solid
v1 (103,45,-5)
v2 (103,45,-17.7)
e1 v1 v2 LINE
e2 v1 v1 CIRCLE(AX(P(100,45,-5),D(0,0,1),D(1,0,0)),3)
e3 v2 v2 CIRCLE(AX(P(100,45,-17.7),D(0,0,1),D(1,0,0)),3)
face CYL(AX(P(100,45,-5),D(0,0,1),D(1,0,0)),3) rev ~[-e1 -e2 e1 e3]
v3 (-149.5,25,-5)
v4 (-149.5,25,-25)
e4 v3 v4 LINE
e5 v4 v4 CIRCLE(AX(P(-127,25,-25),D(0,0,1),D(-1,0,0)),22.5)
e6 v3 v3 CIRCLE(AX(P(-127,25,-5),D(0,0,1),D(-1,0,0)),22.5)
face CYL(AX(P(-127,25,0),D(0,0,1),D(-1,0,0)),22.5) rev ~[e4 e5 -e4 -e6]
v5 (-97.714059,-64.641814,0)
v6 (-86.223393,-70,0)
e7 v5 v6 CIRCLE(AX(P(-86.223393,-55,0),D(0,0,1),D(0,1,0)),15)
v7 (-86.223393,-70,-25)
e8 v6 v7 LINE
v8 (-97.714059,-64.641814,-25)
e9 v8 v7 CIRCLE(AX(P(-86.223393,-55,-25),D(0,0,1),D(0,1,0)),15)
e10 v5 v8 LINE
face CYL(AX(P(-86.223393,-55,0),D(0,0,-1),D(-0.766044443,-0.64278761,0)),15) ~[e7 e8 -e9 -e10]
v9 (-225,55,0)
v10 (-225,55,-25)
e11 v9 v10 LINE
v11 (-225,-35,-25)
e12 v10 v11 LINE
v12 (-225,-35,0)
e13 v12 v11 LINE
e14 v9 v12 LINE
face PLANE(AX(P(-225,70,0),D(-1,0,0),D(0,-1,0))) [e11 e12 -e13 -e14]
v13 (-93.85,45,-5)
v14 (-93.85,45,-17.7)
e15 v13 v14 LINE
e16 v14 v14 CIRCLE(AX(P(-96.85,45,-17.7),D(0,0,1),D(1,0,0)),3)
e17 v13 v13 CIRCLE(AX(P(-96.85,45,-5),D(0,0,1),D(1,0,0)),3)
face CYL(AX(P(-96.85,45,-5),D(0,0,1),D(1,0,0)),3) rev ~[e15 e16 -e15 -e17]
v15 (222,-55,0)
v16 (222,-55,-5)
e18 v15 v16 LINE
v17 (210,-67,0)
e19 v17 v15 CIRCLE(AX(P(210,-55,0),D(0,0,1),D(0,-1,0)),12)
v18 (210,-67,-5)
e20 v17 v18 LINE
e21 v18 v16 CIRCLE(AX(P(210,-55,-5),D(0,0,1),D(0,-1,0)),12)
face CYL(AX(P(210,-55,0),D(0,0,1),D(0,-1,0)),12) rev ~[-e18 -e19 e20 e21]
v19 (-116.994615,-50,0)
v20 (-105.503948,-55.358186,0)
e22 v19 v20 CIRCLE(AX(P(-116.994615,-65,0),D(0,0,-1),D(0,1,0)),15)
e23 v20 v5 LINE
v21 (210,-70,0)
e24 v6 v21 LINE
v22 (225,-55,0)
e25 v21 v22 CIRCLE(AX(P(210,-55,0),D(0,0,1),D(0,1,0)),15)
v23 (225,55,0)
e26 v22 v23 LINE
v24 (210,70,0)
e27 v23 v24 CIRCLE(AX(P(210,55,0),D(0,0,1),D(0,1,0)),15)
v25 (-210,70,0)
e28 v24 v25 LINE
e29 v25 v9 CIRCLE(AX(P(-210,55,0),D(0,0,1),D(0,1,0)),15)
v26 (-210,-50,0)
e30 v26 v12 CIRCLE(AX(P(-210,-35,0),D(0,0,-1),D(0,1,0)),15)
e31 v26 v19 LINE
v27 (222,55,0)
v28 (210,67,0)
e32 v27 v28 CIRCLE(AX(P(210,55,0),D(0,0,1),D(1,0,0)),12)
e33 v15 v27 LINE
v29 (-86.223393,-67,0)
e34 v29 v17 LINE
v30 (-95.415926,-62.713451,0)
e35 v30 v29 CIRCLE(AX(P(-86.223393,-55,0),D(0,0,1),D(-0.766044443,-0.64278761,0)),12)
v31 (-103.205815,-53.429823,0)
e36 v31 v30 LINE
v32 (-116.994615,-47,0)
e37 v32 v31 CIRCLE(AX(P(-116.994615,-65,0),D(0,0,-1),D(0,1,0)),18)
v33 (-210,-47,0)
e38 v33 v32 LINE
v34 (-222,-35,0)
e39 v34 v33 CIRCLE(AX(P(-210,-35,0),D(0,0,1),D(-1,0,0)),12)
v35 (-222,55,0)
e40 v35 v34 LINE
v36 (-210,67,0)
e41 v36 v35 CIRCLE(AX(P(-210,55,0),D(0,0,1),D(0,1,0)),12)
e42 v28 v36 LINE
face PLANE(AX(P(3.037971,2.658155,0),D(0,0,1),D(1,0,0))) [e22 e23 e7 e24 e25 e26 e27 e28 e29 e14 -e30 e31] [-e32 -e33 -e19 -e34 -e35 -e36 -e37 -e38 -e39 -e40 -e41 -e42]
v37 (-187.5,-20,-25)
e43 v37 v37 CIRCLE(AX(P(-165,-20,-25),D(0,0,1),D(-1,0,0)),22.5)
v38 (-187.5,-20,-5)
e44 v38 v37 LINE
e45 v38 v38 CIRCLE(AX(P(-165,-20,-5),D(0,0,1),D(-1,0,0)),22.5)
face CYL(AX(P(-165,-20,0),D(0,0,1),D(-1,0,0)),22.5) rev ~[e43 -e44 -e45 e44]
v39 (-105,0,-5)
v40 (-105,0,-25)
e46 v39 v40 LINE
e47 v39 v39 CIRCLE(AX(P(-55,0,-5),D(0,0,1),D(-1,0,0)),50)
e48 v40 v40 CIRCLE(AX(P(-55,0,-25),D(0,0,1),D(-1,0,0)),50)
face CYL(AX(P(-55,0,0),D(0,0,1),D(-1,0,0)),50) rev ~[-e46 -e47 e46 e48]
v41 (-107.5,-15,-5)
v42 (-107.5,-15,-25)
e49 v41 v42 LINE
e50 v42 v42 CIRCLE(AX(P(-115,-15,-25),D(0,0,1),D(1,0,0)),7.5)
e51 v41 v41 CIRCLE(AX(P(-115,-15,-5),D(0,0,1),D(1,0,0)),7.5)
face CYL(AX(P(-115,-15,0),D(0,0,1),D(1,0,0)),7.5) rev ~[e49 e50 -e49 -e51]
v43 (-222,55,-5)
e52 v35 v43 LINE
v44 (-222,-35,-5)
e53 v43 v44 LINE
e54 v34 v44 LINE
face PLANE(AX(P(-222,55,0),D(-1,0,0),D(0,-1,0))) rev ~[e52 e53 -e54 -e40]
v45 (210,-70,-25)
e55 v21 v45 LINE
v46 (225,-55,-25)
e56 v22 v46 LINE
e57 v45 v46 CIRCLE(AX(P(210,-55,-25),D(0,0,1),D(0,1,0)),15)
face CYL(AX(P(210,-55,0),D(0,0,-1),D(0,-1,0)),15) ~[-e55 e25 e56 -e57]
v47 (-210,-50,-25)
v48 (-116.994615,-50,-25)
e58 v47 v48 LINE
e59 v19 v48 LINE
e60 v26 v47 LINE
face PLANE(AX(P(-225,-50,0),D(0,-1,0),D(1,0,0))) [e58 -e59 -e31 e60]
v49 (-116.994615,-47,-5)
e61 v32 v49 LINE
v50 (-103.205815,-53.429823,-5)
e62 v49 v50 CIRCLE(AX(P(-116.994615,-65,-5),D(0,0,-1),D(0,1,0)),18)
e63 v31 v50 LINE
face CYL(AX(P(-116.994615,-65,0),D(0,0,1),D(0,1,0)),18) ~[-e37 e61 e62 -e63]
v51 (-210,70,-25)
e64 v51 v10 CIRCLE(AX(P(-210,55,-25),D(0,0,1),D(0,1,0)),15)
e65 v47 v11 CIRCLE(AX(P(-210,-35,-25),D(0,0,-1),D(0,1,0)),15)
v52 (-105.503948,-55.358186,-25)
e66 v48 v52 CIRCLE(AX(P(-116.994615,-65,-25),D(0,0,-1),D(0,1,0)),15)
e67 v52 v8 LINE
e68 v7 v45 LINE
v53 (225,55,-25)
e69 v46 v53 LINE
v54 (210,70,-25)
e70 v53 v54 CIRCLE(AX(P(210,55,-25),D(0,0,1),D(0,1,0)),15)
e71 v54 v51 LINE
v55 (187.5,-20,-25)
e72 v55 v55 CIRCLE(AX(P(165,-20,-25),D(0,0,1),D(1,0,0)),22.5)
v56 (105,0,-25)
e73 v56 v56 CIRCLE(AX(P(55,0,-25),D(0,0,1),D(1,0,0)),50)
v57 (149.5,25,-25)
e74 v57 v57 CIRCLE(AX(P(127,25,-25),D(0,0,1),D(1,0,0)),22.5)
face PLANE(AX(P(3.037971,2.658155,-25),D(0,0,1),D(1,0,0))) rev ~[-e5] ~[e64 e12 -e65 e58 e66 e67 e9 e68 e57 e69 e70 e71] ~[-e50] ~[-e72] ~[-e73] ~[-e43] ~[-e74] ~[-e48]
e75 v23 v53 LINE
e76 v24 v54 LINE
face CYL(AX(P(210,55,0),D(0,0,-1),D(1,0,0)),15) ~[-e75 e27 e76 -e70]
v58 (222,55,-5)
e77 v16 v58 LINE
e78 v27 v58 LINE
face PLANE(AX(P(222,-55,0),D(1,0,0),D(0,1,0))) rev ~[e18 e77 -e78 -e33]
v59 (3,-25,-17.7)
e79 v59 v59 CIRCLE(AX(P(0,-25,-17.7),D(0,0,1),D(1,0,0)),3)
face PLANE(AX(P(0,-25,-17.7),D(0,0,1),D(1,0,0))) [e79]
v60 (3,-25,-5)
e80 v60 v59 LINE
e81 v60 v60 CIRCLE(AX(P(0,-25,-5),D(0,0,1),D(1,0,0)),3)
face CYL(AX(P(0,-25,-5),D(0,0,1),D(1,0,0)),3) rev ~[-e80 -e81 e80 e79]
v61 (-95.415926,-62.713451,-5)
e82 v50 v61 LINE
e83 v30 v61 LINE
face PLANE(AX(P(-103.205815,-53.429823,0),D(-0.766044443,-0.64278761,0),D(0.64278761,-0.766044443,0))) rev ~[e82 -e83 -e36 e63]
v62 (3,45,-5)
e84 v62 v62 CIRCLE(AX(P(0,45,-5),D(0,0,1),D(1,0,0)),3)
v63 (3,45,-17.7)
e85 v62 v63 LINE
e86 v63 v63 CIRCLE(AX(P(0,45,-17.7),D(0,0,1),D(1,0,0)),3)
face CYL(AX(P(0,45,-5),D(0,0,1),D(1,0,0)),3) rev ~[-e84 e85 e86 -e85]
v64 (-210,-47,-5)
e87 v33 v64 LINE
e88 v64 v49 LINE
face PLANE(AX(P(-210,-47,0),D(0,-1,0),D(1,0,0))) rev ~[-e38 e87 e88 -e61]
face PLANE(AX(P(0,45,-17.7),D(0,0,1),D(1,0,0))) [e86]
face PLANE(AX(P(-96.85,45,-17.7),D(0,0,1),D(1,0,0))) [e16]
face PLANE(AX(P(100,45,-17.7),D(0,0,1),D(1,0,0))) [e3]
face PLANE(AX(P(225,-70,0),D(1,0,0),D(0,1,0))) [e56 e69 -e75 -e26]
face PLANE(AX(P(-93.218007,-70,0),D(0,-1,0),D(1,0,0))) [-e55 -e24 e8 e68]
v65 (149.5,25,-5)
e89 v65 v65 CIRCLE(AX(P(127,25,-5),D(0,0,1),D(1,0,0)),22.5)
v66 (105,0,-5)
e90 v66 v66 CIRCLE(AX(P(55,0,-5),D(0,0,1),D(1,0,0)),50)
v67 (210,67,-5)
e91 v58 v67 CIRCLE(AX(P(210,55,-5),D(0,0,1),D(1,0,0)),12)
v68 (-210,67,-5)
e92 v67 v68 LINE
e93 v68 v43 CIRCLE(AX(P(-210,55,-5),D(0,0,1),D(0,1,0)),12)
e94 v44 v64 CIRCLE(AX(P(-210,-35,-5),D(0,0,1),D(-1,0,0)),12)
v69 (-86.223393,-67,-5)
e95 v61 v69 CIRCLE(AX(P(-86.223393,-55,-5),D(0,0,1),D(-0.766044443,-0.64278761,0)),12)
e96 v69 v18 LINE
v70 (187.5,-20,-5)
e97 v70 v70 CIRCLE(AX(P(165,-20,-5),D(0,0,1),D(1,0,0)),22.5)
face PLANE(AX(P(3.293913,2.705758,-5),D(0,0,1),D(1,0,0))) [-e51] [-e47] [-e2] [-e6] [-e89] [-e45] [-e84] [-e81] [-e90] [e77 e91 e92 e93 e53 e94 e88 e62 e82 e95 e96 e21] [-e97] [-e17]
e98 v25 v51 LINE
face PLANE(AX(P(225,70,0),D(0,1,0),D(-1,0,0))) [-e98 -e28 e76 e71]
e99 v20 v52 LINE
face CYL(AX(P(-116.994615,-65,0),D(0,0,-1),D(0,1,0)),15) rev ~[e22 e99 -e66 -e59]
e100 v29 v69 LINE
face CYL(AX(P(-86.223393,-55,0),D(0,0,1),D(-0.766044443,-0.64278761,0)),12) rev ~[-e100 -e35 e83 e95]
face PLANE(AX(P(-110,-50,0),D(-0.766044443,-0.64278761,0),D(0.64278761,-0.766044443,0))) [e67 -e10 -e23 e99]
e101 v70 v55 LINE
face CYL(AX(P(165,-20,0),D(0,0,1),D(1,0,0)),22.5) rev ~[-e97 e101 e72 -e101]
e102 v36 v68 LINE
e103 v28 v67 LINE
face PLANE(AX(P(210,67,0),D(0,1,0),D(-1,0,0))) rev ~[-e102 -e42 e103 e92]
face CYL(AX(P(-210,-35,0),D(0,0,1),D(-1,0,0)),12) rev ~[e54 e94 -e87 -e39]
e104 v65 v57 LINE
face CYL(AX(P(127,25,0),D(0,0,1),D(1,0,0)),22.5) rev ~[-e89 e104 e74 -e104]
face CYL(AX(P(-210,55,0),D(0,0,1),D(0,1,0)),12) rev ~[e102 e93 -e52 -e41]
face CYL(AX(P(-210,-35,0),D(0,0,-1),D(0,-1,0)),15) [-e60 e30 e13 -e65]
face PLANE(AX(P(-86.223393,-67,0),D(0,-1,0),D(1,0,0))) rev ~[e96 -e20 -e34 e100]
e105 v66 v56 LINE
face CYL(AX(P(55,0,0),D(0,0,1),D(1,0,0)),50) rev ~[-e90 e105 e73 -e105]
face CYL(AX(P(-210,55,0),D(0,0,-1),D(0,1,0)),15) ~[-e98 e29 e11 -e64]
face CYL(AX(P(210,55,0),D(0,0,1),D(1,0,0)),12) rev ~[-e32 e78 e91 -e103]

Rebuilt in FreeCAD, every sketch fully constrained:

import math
import FreeCAD as App
import Part
import Sketcher
Q = App.Units.Quantity


def edges_at(feature, points):
    """Names of the edges that pass closest to the given points."""
    edges = feature.Shape.Edges
    near = lambda p: min(range(len(edges)), key=lambda i: edges[i].distToShape(Part.Vertex(*p))[0])
    return sorted({f"Edge{near(p) + 1}" for p in points})


def add_polygon(sketch, points):
    """Adds a closed chain of lines whose ends are joined by coincident constraints."""
    first, n = sketch.GeometryCount, len(points)
    for a, b in zip(points, points[1:] + points[:1]):
        sketch.addGeometry(Part.LineSegment(App.Vector(*a, 0), App.Vector(*b, 0)), False)
    for i in range(n):
        sketch.addConstraint(Sketcher.Constraint("Coincident", first + i, 2, first + (i + 1) % n, 1))

doc = App.newDocument("Part")
params = doc.addObject("Spreadsheet::Sheet", "Params")
for row, (alias, value) in enumerate([
    ("sketch1_width", "115 mm"),
    ("sketch1_width2", "450 mm"),
    ("sketch1_height", "140 mm"),
    ("sketch1_height2", "120 mm"),
    ("pad1_length", "25 mm"),
    ("fillet_radius", "15 mm"),
    ("sketch2_diameter", "100 mm"),
    ("sketch2_diameter2", "45 mm"),
    ("sketch2_diameter3", "15 mm"),
    ("sketch3_radius", "12 mm"),
    ("sketch3_radius2", "18 mm"),
    ("sketch3_width", "420 mm"),
    ("sketch3_height", "110 mm"),
    ("sketch3_height2", "90 mm"),
    ("pocket2_length", "5 mm"),
    ("sketch4_diameter", "6 mm"),
    ("pocket3_length", "12.7 mm"),
], start=1):
    params.set(f"A{row}", alias)
    params.set(f"B{row}", "=" + value)
    params.setAlias(f"B{row}", alias)

body = doc.addObject("PartDesign::Body", "Body")

sketch1 = body.newObject("Sketcher::SketchObject", "Sketch")
sketch1.AttachmentSupport = (doc.getObject("XY_Plane"), [""])
sketch1.MapMode = "FlatFace"
add_polygon(sketch1, [(-225, -50), (-110, -50), (-93, -70), (225, -70), (225, 70), (-225, 70)])
sketch1.addConstraint(Sketcher.Constraint("Horizontal", 0))
sketch1.addConstraint(Sketcher.Constraint("Horizontal", 2))
sketch1.addConstraint(Sketcher.Constraint("Vertical", 3))
sketch1.addConstraint(Sketcher.Constraint("Horizontal", 4))
sketch1.addConstraint(Sketcher.Constraint("Vertical", 5))
sketch1.addConstraint(Sketcher.Constraint("Symmetric", 2, 2, 4, 2, -1, 1))
sketch1.addConstraint(Sketcher.Constraint("DistanceX", 0, 1, 0, 2, 115.0))
sketch1.addConstraint(Sketcher.Constraint("DistanceX", 4, 2, 4, 1, 450.0))
sketch1.addConstraint(Sketcher.Constraint("DistanceY", 3, 1, 3, 2, 140.0))
sketch1.addConstraint(Sketcher.Constraint("DistanceY", 5, 2, 5, 1, 120.0))
sketch1.addConstraint(Sketcher.Constraint("Angle", 1, Q("-50 deg")))
sketch1.setExpression("Constraints[12]", "Params.sketch1_width")
sketch1.setExpression("Constraints[13]", "Params.sketch1_width2")
sketch1.setExpression("Constraints[14]", "Params.sketch1_height")
sketch1.setExpression("Constraints[15]", "Params.sketch1_height2")
pad1 = body.newObject("PartDesign::Pad", "Pad")
pad1.Profile = sketch1
pad1.setExpression("Length", "Params.pad1_length")
pad1.Reversed = True
doc.recompute()

fillet = body.newObject("PartDesign::Fillet", "Fillet")
fillet.Base = (pad1, edges_at(pad1, [
    (225, -70, -12.5),
    (-93.218, -70, -12.5),
    (-110, -50, -12.5),
    (-225, -50, -12.5),
    (-225, 70, -12.5),
    (225, 70, -12.5),
]))
fillet.setExpression("Radius", "Params.fillet_radius")

sketch2 = body.newObject("Sketcher::SketchObject", "Sketch001")
sketch2.AttachmentSupport = (doc.getObject("XY_Plane"), [""])
sketch2.MapMode = "FlatFace"
sketch2.addGeometry(Part.Circle(App.Vector(55, 0, 0), App.Vector(0, 0, 1), 50), False)
sketch2.addGeometry(Part.Circle(App.Vector(127, 25, 0), App.Vector(0, 0, 1), 22), False)
sketch2.addGeometry(Part.Circle(App.Vector(165, -20, 0), App.Vector(0, 0, 1), 22), False)
sketch2.addGeometry(Part.Circle(App.Vector(-165, -20, 0), App.Vector(0, 0, 1), 22), False)
sketch2.addGeometry(Part.Circle(App.Vector(-127, 25, 0), App.Vector(0, 0, 1), 22), False)
sketch2.addGeometry(Part.Circle(App.Vector(-55, 0, 0), App.Vector(0, 0, 1), 50), False)
sketch2.addGeometry(Part.Circle(App.Vector(-115, -15, 0), App.Vector(0, 0, 1), 8), False)
sketch2.addConstraint(Sketcher.Constraint("Equal", 1, 2))
sketch2.addConstraint(Sketcher.Constraint("Equal", 2, 3))
sketch2.addConstraint(Sketcher.Constraint("Equal", 3, 4))
sketch2.addConstraint(Sketcher.Constraint("Equal", 0, 5))
sketch2.addConstraint(Sketcher.Constraint("Symmetric", 0, 3, 5, 3, -1, 1))
sketch2.addConstraint(Sketcher.Constraint("Symmetric", 2, 3, 3, 3, -2))
sketch2.addConstraint(Sketcher.Constraint("Symmetric", 1, 3, 4, 3, -2))
sketch2.addConstraint(Sketcher.Constraint("PointOnObject", 0, 3, -1))
sketch2.addConstraint(Sketcher.Constraint("Diameter", 0, 100.0))
sketch2.addConstraint(Sketcher.Constraint("Diameter", 1, 45.0))
sketch2.addConstraint(Sketcher.Constraint("Diameter", 6, 15.0))
sketch2.addConstraint(Sketcher.Constraint("DistanceX", -1, 1, 0, 3, 55.0))
sketch2.addConstraint(Sketcher.Constraint("DistanceX", -1, 1, 1, 3, 127.0))
sketch2.addConstraint(Sketcher.Constraint("DistanceY", -1, 1, 1, 3, 25.0))
sketch2.addConstraint(Sketcher.Constraint("DistanceX", -1, 1, 2, 3, 165.0))
sketch2.addConstraint(Sketcher.Constraint("DistanceY", 2, 3, -1, 1, 20.0))
sketch2.addConstraint(Sketcher.Constraint("DistanceX", 6, 3, -1, 1, 115.0))
sketch2.addConstraint(Sketcher.Constraint("DistanceY", 6, 3, -1, 1, 15.0))
sketch2.setExpression("Constraints[8]", "Params.sketch2_diameter")
sketch2.setExpression("Constraints[9]", "Params.sketch2_diameter2")
sketch2.setExpression("Constraints[10]", "Params.sketch2_diameter3")
pocket1 = body.newObject("PartDesign::Pocket", "Pocket")
pocket1.Profile = sketch2
pocket1.Type = "ThroughAll"

sketch3 = body.newObject("Sketcher::SketchObject", "Sketch002")
sketch3.AttachmentSupport = (doc.getObject("XY_Plane"), [""])
sketch3.MapMode = "FlatFace"
sketch3.addGeometry(Part.LineSegment(App.Vector(-103, -53, 0), App.Vector(-95, -63, 0)), False)
sketch3.addGeometry(Part.ArcOfCircle(Part.Circle(App.Vector(-86, -55, 0), App.Vector(0, 0, 1), 12), math.radians(-140), math.radians(-90)), False)
sketch3.addGeometry(Part.LineSegment(App.Vector(-86, -67, 0), App.Vector(210, -67, 0)), False)
sketch3.addGeometry(Part.ArcOfCircle(Part.Circle(App.Vector(210, -55, 0), App.Vector(0, 0, 1), 12), math.radians(-90), math.radians(0)), False)
sketch3.addGeometry(Part.LineSegment(App.Vector(222, -55, 0), App.Vector(222, 55, 0)), False)
sketch3.addGeometry(Part.ArcOfCircle(Part.Circle(App.Vector(210, 55, 0), App.Vector(0, 0, 1), 12), math.radians(0), math.radians(90)), False)
sketch3.addGeometry(Part.LineSegment(App.Vector(210, 67, 0), App.Vector(-210, 67, 0)), False)
sketch3.addGeometry(Part.ArcOfCircle(Part.Circle(App.Vector(-210, 55, 0), App.Vector(0, 0, 1), 12), math.radians(90), math.radians(180)), False)
sketch3.addGeometry(Part.LineSegment(App.Vector(-222, 55, 0), App.Vector(-222, -35, 0)), False)
sketch3.addGeometry(Part.ArcOfCircle(Part.Circle(App.Vector(-210, -35, 0), App.Vector(0, 0, 1), 12), math.radians(-180), math.radians(-90)), False)
sketch3.addGeometry(Part.LineSegment(App.Vector(-210, -47, 0), App.Vector(-117, -47, 0)), False)
sketch3.addGeometry(Part.ArcOfCircle(Part.Circle(App.Vector(-117, -65, 0), App.Vector(0, 0, 1), 18), math.radians(40), math.radians(90)), False)
sketch3.addConstraint(Sketcher.Constraint("Tangent", 0, 2, 1, 1))
sketch3.addConstraint(Sketcher.Constraint("Tangent", 1, 2, 2, 1))
sketch3.addConstraint(Sketcher.Constraint("Tangent", 2, 2, 3, 1))
sketch3.addConstraint(Sketcher.Constraint("Tangent", 3, 2, 4, 1))
sketch3.addConstraint(Sketcher.Constraint("Tangent", 4, 2, 5, 1))
sketch3.addConstraint(Sketcher.Constraint("Tangent", 5, 2, 6, 1))
sketch3.addConstraint(Sketcher.Constraint("Tangent", 6, 2, 7, 1))
sketch3.addConstraint(Sketcher.Constraint("Tangent", 7, 2, 8, 1))
sketch3.addConstraint(Sketcher.Constraint("Tangent", 8, 2, 9, 1))
sketch3.addConstraint(Sketcher.Constraint("Tangent", 9, 2, 10, 1))
sketch3.addConstraint(Sketcher.Constraint("Tangent", 10, 2, 11, 2))
sketch3.addConstraint(Sketcher.Constraint("Tangent", 11, 1, 0, 1))
sketch3.addConstraint(Sketcher.Constraint("Horizontal", 2))
sketch3.addConstraint(Sketcher.Constraint("Vertical", 4))
sketch3.addConstraint(Sketcher.Constraint("Horizontal", 6))
sketch3.addConstraint(Sketcher.Constraint("Vertical", 8))
sketch3.addConstraint(Sketcher.Constraint("Horizontal", 10))
sketch3.addConstraint(Sketcher.Constraint("Equal", 1, 3))
sketch3.addConstraint(Sketcher.Constraint("Equal", 3, 5))
sketch3.addConstraint(Sketcher.Constraint("Equal", 5, 7))
sketch3.addConstraint(Sketcher.Constraint("Equal", 7, 9))
sketch3.addConstraint(Sketcher.Constraint("Symmetric", 3, 3, 7, 3, -1, 1))
sketch3.addConstraint(Sketcher.Constraint("Radius", 1, 12.0))
sketch3.addConstraint(Sketcher.Constraint("Radius", 11, 18.0))
sketch3.addConstraint(Sketcher.Constraint("DistanceX", 6, 2, 6, 1, 420.0))
sketch3.addConstraint(Sketcher.Constraint("DistanceY", 4, 1, 4, 2, 110.0))
sketch3.addConstraint(Sketcher.Constraint("DistanceY", 8, 2, 8, 1, 90.0))
sketch3.addConstraint(Sketcher.Constraint("Angle", 0, Q("-50 deg")))
sketch3.addConstraint(Sketcher.Constraint("DistanceX", 2, 1, 2, 2, 296.223393))
sketch3.setExpression("Constraints[22]", "Params.sketch3_radius")
sketch3.setExpression("Constraints[23]", "Params.sketch3_radius2")
sketch3.setExpression("Constraints[24]", "Params.sketch3_width")
sketch3.setExpression("Constraints[25]", "Params.sketch3_height")
sketch3.setExpression("Constraints[26]", "Params.sketch3_height2")
pocket2 = body.newObject("PartDesign::Pocket", "Pocket001")
pocket2.Profile = sketch3
pocket2.setExpression("Length", "Params.pocket2_length")

sketch4 = body.newObject("Sketcher::SketchObject", "Sketch003")
sketch4.AttachmentSupport = (doc.getObject("XY_Plane"), [""])
sketch4.MapMode = "FlatFace"
sketch4.AttachmentOffset = App.Placement(App.Vector(0, 0, -5), App.Rotation())
sketch4.addGeometry(Part.Circle(App.Vector(0, 45, 0), App.Vector(0, 0, 1), 3), False)
sketch4.addGeometry(Part.Circle(App.Vector(0, -25, 0), App.Vector(0, 0, 1), 3), False)
sketch4.addGeometry(Part.Circle(App.Vector(100, 45, 0), App.Vector(0, 0, 1), 3), False)
sketch4.addGeometry(Part.Circle(App.Vector(-96.8, 45, 0), App.Vector(0, 0, 1), 3), False)
sketch4.addConstraint(Sketcher.Constraint("Equal", 0, 1))
sketch4.addConstraint(Sketcher.Constraint("Equal", 1, 2))
sketch4.addConstraint(Sketcher.Constraint("Equal", 2, 3))
sketch4.addConstraint(Sketcher.Constraint("PointOnObject", 0, 3, -2))
sketch4.addConstraint(Sketcher.Constraint("PointOnObject", 1, 3, -2))
sketch4.addConstraint(Sketcher.Constraint("Horizontal", 0, 3, 2, 3))
sketch4.addConstraint(Sketcher.Constraint("Horizontal", 2, 3, 3, 3))
sketch4.addConstraint(Sketcher.Constraint("Diameter", 0, 6.0))
sketch4.addConstraint(Sketcher.Constraint("DistanceY", -1, 1, 0, 3, 45.0))
sketch4.addConstraint(Sketcher.Constraint("DistanceY", 1, 3, -1, 1, 25.0))
sketch4.addConstraint(Sketcher.Constraint("DistanceX", -1, 1, 2, 3, 100.0))
sketch4.addConstraint(Sketcher.Constraint("DistanceX", 3, 3, -1, 1, 96.85))
sketch4.setExpression("Constraints[7]", "Params.sketch4_diameter")
pocket3 = body.newObject("PartDesign::Pocket", "Pocket002")
pocket3.Profile = sketch4
pocket3.setExpression("Length", "Params.pocket3_length")

doc.recompute()
